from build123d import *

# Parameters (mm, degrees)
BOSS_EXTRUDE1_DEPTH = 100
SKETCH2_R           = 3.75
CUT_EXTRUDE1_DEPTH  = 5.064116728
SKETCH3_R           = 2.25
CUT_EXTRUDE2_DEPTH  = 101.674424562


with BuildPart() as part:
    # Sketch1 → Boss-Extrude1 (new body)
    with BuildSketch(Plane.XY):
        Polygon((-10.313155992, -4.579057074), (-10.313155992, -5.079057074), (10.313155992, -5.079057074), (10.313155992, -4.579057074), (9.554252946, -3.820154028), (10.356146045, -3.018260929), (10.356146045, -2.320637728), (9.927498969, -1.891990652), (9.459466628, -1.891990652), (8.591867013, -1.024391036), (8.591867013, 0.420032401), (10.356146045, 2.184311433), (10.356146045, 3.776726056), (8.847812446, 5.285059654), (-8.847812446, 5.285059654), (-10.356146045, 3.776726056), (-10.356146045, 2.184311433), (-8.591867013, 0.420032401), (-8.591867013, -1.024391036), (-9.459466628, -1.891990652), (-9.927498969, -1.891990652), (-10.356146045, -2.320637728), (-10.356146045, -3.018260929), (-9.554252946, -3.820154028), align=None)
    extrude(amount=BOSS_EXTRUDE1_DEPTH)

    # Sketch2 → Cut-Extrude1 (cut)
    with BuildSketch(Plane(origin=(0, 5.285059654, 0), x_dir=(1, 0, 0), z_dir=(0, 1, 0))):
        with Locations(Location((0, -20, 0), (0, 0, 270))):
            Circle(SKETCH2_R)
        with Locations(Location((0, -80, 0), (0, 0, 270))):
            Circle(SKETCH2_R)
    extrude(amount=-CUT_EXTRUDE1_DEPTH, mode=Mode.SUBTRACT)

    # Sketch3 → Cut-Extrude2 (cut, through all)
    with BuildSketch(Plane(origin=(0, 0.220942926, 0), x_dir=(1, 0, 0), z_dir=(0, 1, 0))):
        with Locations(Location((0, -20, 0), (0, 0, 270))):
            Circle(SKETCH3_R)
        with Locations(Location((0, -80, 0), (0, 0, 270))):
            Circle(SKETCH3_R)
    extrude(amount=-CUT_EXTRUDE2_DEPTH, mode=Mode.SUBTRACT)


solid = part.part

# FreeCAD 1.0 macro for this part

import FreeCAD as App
import Part
import Sketcher

V = App.Vector


def add_polygon(sketch, points):
    """Adds a closed chain of lines whose ends are joined by coincident constraints."""
    first, n = sketch.GeometryCount, len(points)
    for a, b in zip(points, points[1:] + points[:1]):
        sketch.addGeometry(Part.LineSegment(App.Vector(*a, 0), App.Vector(*b, 0)), False)
    for i in range(n):
        sketch.addConstraint(Sketcher.Constraint("Coincident", first + i, 2, first + (i + 1) % n, 1))

doc = App.newDocument("Part")
body = doc.addObject("PartDesign::Body", "Body")

# Sketch on XY plane
sketch1 = doc.addObject("Sketcher::SketchObject", "Sketch")
body.addObject(sketch1)
sketch1.AttachmentSupport = (doc.XY_Plane, [""])
sketch1.MapMode = "FlatFace"
add_polygon(sketch1, [(-10.31, -4.58), (-10.31, -5.08), (10.31, -5.08), (10.31, -4.58), (9.55, -3.82), (10.36, -3.02), (10.36, -2.32), (9.93, -1.89), (9.46, -1.89), (8.59, -1.02), (8.59, 0.42), (10.36, 2.18), (10.36, 3.78), (8.85, 5.29), (-8.85, 5.29), (-10.36, 3.78), (-10.36, 2.18), (-8.59, 0.42), (-8.59, -1.02), (-9.46, -1.89), (-9.93, -1.89), (-10.36, -2.32), (-10.36, -3.02), (-9.55, -3.82)])  # lines 0-23
sketch1.addConstraint([
    Sketcher.Constraint("Vertical", 0),
    Sketcher.Constraint("Horizontal", 1),
    Sketcher.Constraint("Vertical", 2),
    Sketcher.Constraint("Vertical", 5),
    Sketcher.Constraint("Horizontal", 7),
    Sketcher.Constraint("Vertical", 9),
    Sketcher.Constraint("Vertical", 11),
    Sketcher.Constraint("Horizontal", 13),
    Sketcher.Constraint("Vertical", 15),
    Sketcher.Constraint("Vertical", 17),
    Sketcher.Constraint("Horizontal", 19),
    Sketcher.Constraint("Vertical", 21),
    Sketcher.Constraint("Symmetric", 11, 2, 14, 2, -2),
    Sketcher.Constraint("Symmetric", 9, 2, 16, 2, -2),
    Sketcher.Constraint("Symmetric", 7, 2, 18, 2, -2),
    Sketcher.Constraint("Symmetric", 5, 2, 20, 2, -2),
    Sketcher.Constraint("Symmetric", 3, 2, 22, 2, -2),
    Sketcher.Constraint("Symmetric", 2, 2, 23, 2, -2),
    Sketcher.Constraint("Perpendicular", 3, 4),
    Sketcher.Constraint("Perpendicular", 4, 6),
    Sketcher.Constraint("Parallel", 6, 8),
    Sketcher.Constraint("Perpendicular", 8, 10),
    Sketcher.Constraint("Perpendicular", 10, 12),
    Sketcher.Constraint("Perpendicular", 12, 14),
    Sketcher.Constraint("Perpendicular", 14, 16),
    Sketcher.Constraint("Perpendicular", 16, 18),
    Sketcher.Constraint("Parallel", 18, 20),
    Sketcher.Constraint("Perpendicular", 20, 22),
    Sketcher.Constraint("Perpendicular", 22, 23),
    Sketcher.Constraint("Vertical", 5, 2, 10, 2),
    Sketcher.Constraint("DistanceY", 0, 2, 0, 1, 0.5),
    Sketcher.Constraint("Distance", 6, 0.606199),
    Sketcher.Constraint("DistanceX", 1, 1, 1, 2, 20.626312),
    Sketcher.Constraint("DistanceX", -1, 1, 6, 2, 9.927499),
    Sketcher.Constraint("DistanceX", 8, 2, 7, 2, 0.8676),
    Sketcher.Constraint("Distance", 3, 1.073251),
    Sketcher.Constraint("DistanceX", 7, 2, 7, 1, 0.468032),
    Sketcher.Constraint("DistanceX", 13, 2, 13, 1, 17.695625),
    Sketcher.Constraint("DistanceY", 5, 1, 5, 2, 0.697623),
    Sketcher.Constraint("DistanceY", 9, 1, 9, 2, 1.444423),
    Sketcher.Constraint("DistanceY", 11, 1, 11, 2, 1.592415),
    Sketcher.Constraint("DistanceY", 4, 2, -1, 1, 3.018261),
])
pad1 = doc.addObject("PartDesign::Pad", "Pad")
body.addObject(pad1)
pad1.Profile = sketch1
pad1.Length = 100

# Sketch on XZ plane
sketch2 = doc.addObject("Sketcher::SketchObject", "Sketch001")
body.addObject(sketch2)
sketch2.AttachmentSupport = (doc.XZ_Plane, [""])
sketch2.MapMode = "FlatFace"
sketch2.AttachmentOffset = App.Placement(V(0, 0, -5.28506), App.Rotation())
sketch2.addGeometry([
    Part.Circle(V(0, 20, 0), V(0, 0, 1), 3.8),
    Part.Circle(V(0, 80, 0), V(0, 0, 1), 3.8),
], False)
sketch2.addConstraint([
    Sketcher.Constraint("Equal", 0, 1),
    Sketcher.Constraint("PointOnObject", 0, 3, -2),
    Sketcher.Constraint("PointOnObject", 1, 3, -2),
    Sketcher.Constraint("Diameter", 0, 7.5),
    Sketcher.Constraint("DistanceY", -1, 1, 0, 3, 20.0),
    Sketcher.Constraint("DistanceY", -1, 1, 1, 3, 80.0),
])
pocket1 = doc.addObject("PartDesign::Pocket", "Pocket")
body.addObject(pocket1)
pocket1.Profile = sketch2
pocket1.Length = 5.064117
pocket1.Reversed = True

# Sketch on XZ plane
sketch3 = doc.addObject("Sketcher::SketchObject", "Sketch002")
body.addObject(sketch3)
sketch3.AttachmentSupport = (doc.XZ_Plane, [""])
sketch3.MapMode = "FlatFace"
sketch3.AttachmentOffset = App.Placement(V(0, 0, -0.220943), App.Rotation())
sketch3.addGeometry([
    Part.Circle(V(0, 20, 0), V(0, 0, 1), 2.2),
    Part.Circle(V(0, 80, 0), V(0, 0, 1), 2.2),
], False)
sketch3.addConstraint([
    Sketcher.Constraint("Equal", 0, 1),
    Sketcher.Constraint("PointOnObject", 0, 3, -2),
    Sketcher.Constraint("PointOnObject", 1, 3, -2),
    Sketcher.Constraint("Diameter", 0, 4.5),
    Sketcher.Constraint("DistanceY", -1, 1, 0, 3, 20.0),
    Sketcher.Constraint("DistanceY", -1, 1, 1, 3, 80.0),
])
pocket2 = doc.addObject("PartDesign::Pocket", "Pocket001")
body.addObject(pocket2)
pocket2.Profile = sketch3
pocket2.Type = "ThroughAll"
pocket2.Reversed = True

doc.recompute()
